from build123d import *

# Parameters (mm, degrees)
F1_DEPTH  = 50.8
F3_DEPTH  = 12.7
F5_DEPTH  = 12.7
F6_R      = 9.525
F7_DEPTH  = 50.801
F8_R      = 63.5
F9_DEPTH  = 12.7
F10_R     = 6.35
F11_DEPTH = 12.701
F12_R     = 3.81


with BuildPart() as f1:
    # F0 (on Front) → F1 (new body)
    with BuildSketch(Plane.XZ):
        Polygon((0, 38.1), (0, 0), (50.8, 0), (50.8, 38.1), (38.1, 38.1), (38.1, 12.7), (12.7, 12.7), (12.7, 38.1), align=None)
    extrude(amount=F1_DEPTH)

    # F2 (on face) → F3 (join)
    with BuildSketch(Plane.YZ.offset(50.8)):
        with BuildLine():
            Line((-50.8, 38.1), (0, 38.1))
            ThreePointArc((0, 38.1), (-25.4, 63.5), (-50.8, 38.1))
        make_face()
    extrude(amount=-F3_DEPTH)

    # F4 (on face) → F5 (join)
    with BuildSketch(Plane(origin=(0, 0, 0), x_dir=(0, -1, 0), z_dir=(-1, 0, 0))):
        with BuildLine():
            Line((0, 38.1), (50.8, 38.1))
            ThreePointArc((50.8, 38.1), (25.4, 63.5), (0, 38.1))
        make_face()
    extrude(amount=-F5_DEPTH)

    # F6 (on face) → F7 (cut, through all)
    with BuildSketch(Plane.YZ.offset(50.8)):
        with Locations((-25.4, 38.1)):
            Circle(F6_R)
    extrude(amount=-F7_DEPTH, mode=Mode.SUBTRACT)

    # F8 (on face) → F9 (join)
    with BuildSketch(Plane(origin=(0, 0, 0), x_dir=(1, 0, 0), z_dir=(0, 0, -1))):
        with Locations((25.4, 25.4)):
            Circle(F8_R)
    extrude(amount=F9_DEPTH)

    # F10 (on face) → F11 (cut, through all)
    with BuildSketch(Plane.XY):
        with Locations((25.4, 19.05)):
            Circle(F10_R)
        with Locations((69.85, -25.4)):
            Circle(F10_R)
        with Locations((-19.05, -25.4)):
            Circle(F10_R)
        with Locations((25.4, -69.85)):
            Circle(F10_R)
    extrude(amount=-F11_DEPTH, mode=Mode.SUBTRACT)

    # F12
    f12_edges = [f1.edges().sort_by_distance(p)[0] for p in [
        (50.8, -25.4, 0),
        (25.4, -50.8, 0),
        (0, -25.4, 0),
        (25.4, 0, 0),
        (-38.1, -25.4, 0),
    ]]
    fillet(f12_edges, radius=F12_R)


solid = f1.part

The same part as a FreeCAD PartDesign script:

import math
import FreeCAD as App
import Part
import Sketcher
from FreeCAD import Vector
Q = App.Units.Quantity


def edges_at(feature, points):
    """Names of the edges that pass closest to the given points."""
    edges = feature.Shape.Edges
    near = lambda p: min(range(len(edges)), key=lambda i: edges[i].distToShape(Part.Vertex(*p))[0])
    return sorted({f"Edge{near(p) + 1}" for p in points})


def add_polygon(sketch, points):
    """Adds a closed chain of lines whose ends are joined by coincident constraints."""
    first, n = sketch.GeometryCount, len(points)
    for a, b in zip(points, points[1:] + points[:1]):
        sketch.addGeometry(Part.LineSegment(App.Vector(*a, 0), App.Vector(*b, 0)), False)
    for i in range(n):
        sketch.addConstraint(Sketcher.Constraint("Coincident", first + i, 2, first + (i + 1) % n, 1))

doc = App.newDocument("Part")
params = doc.addObject("Spreadsheet::Sheet", "Params")
for row, (alias, value) in enumerate([
    ("sketch1_width", "2 in"),
    ("sketch1_width2", "1 in"),
    ("sketch1_height", "1.5 in"),
    ("pad1_length", "2 in"),
    ("sketch2_radius", "1 in"),
    ("pad2_length", "0.5 in"),
    ("sketch3_radius", "1 in"),
    ("pad3_length", "0.5 in"),
    ("sketch4_diameter", "0.75 in"),
    ("sketch5_diameter", "5 in"),
    ("pad4_length", "0.5 in"),
    ("sketch6_diameter", "0.5 in"),
    ("fillet_radius", "0.15 in"),
], start=1):
    params.set(f"A{row}", alias)
    params.set(f"B{row}", "=" + value)
    params.setAlias(f"B{row}", alias)

body = doc.addObject("PartDesign::Body", "Body")

sketch1 = doc.addObject("Sketcher::SketchObject", "Sketch")
body.addObject(sketch1)
sketch1.AttachmentSupport = (doc.XZ_Plane, [""])
sketch1.MapMode = "FlatFace"
add_polygon(sketch1, [(0, 38), (0, 0), (51, 0), (51, 38), (38, 38), (38, 13), (13, 13), (13, 38)])
sketch1.addConstraint([
    Sketcher.Constraint("Vertical", 0),
    Sketcher.Constraint("Horizontal", 1),
    Sketcher.Constraint("Vertical", 2),
    Sketcher.Constraint("Horizontal", 3),
    Sketcher.Constraint("Vertical", 4),
    Sketcher.Constraint("Horizontal", 5),
    Sketcher.Constraint("Vertical", 6),
    Sketcher.Constraint("Horizontal", 7),
    Sketcher.Constraint("Coincident", 0, 2, -1, 1),
    Sketcher.Constraint("Horizontal", 3, 2, 6, 2),
    Sketcher.Constraint("Equal", 3, 7),
    Sketcher.Constraint("Equal", 5, 4),
    Sketcher.Constraint("DistanceX", 1, 1, 1, 2, Q("2 in")),
    Sketcher.Constraint("DistanceX", 5, 2, 5, 1, Q("1 in")),
    Sketcher.Constraint("DistanceY", 0, 2, 0, 1, Q("1.5 in")),
])
sketch1.setExpression("Constraints[20]", "Params.sketch1_width")
sketch1.setExpression("Constraints[21]", "Params.sketch1_width2")
sketch1.setExpression("Constraints[22]", "Params.sketch1_height")
pad1 = doc.addObject("PartDesign::Pad", "Pad")
body.addObject(pad1)
pad1.Profile = sketch1
pad1.setExpression("Length", "Params.pad1_length")

sketch2 = doc.addObject("Sketcher::SketchObject", "Sketch001")
body.addObject(sketch2)
sketch2.AttachmentSupport = (doc.YZ_Plane, [""])
sketch2.MapMode = "FlatFace"
sketch2.AttachmentOffset = App.Placement(Vector(0, 0, 2 * 25.4), App.Rotation())
sketch2.addGeometry([
    Part.LineSegment(Vector(-51, 38, 0), Vector(0, 38, 0)),
    Part.ArcOfCircle(Part.Circle(Vector(-25, 38, 0), Vector(0, 0, 1), 25), math.radians(0), math.radians(180)),
], False)
sketch2.addConstraint([
    Sketcher.Constraint("Coincident", 0, 1, 1, 2),
    Sketcher.Constraint("Coincident", 1, 1, 0, 2),
    Sketcher.Constraint("Horizontal", 0),
    Sketcher.Constraint("PointOnObject", 1, 1, -2),
    Sketcher.Constraint("Horizontal", 1, 3, 0, 1),
    Sketcher.Constraint("Radius", 1, Q("1 in")),
    Sketcher.Constraint("DistanceY", -1, 1, 1, 3, Q("1.5 in")),
])
sketch2.setExpression("Constraints[5]", "Params.sketch2_radius")
pad2 = doc.addObject("PartDesign::Pad", "Pad001")
body.addObject(pad2)
pad2.Profile = sketch2
pad2.setExpression("Length", "Params.pad2_length")
pad2.Reversed = True

sketch3 = doc.addObject("Sketcher::SketchObject", "Sketch002")
body.addObject(sketch3)
sketch3.AttachmentSupport = (doc.YZ_Plane, [""])
sketch3.MapMode = "FlatFace"
sketch3.addGeometry([
    Part.LineSegment(Vector(0, 38, 0), Vector(-51, 38, 0)),
    Part.ArcOfCircle(Part.Circle(Vector(-25, 38, 0), Vector(0, 0, 1), 25), math.radians(0), math.radians(180)),
], False)
sketch3.addConstraint([
    Sketcher.Constraint("Coincident", 0, 1, 1, 1),
    Sketcher.Constraint("Coincident", 1, 2, 0, 2),
    Sketcher.Constraint("Horizontal", 0),
    Sketcher.Constraint("PointOnObject", 0, 1, -2),
    Sketcher.Constraint("Horizontal", 1, 3, 0, 1),
    Sketcher.Constraint("Radius", 1, Q("1 in")),
    Sketcher.Constraint("DistanceY", -1, 1, 1, 3, Q("1.5 in")),
])
sketch3.setExpression("Constraints[5]", "Params.sketch3_radius")
pad3 = doc.addObject("PartDesign::Pad", "Pad002")
body.addObject(pad3)
pad3.Profile = sketch3
pad3.setExpression("Length", "Params.pad3_length")

sketch4 = doc.addObject("Sketcher::SketchObject", "Sketch003")
body.addObject(sketch4)
sketch4.AttachmentSupport = (doc.YZ_Plane, [""])
sketch4.MapMode = "FlatFace"
sketch4.AttachmentOffset = App.Placement(Vector(0, 0, 2 * 25.4), App.Rotation())
sketch4.addGeometry(Part.Circle(Vector(-25, 38, 0), Vector(0, 0, 1), 10), False)
sketch4.addConstraint([
    Sketcher.Constraint("Diameter", 0, Q("0.75 in")),
    Sketcher.Constraint("DistanceX", 0, 3, -1, 1, Q("1 in")),
    Sketcher.Constraint("DistanceY", -1, 1, 0, 3, Q("1.5 in")),
])
sketch4.setExpression("Constraints[0]", "Params.sketch4_diameter")
pocket1 = doc.addObject("PartDesign::Pocket", "Pocket")
body.addObject(pocket1)
pocket1.Profile = sketch4
pocket1.Type = "ThroughAll"

sketch5 = doc.addObject("Sketcher::SketchObject", "Sketch004")
body.addObject(sketch5)
sketch5.AttachmentSupport = (doc.XY_Plane, [""])
sketch5.MapMode = "FlatFace"
sketch5.addGeometry(Part.Circle(Vector(25, -25, 0), Vector(0, 0, 1), 64), False)
sketch5.addConstraint([
    Sketcher.Constraint("Diameter", 0, Q("5 in")),
    Sketcher.Constraint("DistanceX", -1, 1, 0, 3, Q("1 in")),
    Sketcher.Constraint("DistanceY", 0, 3, -1, 1, Q("1 in")),
])
sketch5.setExpression("Constraints[0]", "Params.sketch5_diameter")
pad4 = doc.addObject("PartDesign::Pad", "Pad003")
body.addObject(pad4)
pad4.Profile = sketch5
pad4.setExpression("Length", "Params.pad4_length")
pad4.Reversed = True

sketch6 = doc.addObject("Sketcher::SketchObject", "Sketch005")
body.addObject(sketch6)
sketch6.AttachmentSupport = (doc.XY_Plane, [""])
sketch6.MapMode = "FlatFace"
sketch6.addGeometry([
    Part.Circle(Vector(25, 19, 0), Vector(0, 0, 1), 6),
    Part.Circle(Vector(70, -25, 0), Vector(0, 0, 1), 6),
    Part.Circle(Vector(-19, -25, 0), Vector(0, 0, 1), 6),
    Part.Circle(Vector(25, -70, 0), Vector(0, 0, 1), 6),
], False)
sketch6.addConstraint([
    Sketcher.Constraint("Equal", 0, 1),
    Sketcher.Constraint("Equal", 1, 2),
    Sketcher.Constraint("Equal", 2, 3),
    Sketcher.Constraint("Horizontal", 1, 3, 2, 3),
    Sketcher.Constraint("Vertical", 0, 3, 3, 3),
    Sketcher.Constraint("Diameter", 0, Q("0.5 in")),
    Sketcher.Constraint("DistanceX", -1, 1, 0, 3, Q("1 in")),
    Sketcher.Constraint("DistanceY", 1, 3, -1, 1, Q("1 in")),
    Sketcher.Constraint("DistanceX", 2, 3, 1, 3, Q("3.5 in")),
    Sketcher.Constraint("DistanceY", 3, 3, 0, 3, Q("3.5 in")),
    Sketcher.Constraint("DistanceY", -1, 1, 0, 3, Q("0.75 in")),
    Sketcher.Constraint("DistanceX", -1, 1, 1, 3, Q("2.75 in")),
])
sketch6.setExpression("Constraints[5]", "Params.sketch6_diameter")
pocket2 = doc.addObject("PartDesign::Pocket", "Pocket001")
body.addObject(pocket2)
pocket2.Profile = sketch6
pocket2.Type = "ThroughAll"
doc.recompute()

fillet = doc.addObject("PartDesign::Fillet", "Fillet")
body.addObject(fillet)
fillet.Base = (pocket2, edges_at(pocket2, [
    (50.8, -25.4, 0),
    (25.4, -50.8, 0),
    (0, -25.4, 0),
    (25.4, 0, 0),
    (-38.1, -25.4, 0),
]))
fillet.setExpression("Radius", "Params.fillet_radius")

doc.recompute()
